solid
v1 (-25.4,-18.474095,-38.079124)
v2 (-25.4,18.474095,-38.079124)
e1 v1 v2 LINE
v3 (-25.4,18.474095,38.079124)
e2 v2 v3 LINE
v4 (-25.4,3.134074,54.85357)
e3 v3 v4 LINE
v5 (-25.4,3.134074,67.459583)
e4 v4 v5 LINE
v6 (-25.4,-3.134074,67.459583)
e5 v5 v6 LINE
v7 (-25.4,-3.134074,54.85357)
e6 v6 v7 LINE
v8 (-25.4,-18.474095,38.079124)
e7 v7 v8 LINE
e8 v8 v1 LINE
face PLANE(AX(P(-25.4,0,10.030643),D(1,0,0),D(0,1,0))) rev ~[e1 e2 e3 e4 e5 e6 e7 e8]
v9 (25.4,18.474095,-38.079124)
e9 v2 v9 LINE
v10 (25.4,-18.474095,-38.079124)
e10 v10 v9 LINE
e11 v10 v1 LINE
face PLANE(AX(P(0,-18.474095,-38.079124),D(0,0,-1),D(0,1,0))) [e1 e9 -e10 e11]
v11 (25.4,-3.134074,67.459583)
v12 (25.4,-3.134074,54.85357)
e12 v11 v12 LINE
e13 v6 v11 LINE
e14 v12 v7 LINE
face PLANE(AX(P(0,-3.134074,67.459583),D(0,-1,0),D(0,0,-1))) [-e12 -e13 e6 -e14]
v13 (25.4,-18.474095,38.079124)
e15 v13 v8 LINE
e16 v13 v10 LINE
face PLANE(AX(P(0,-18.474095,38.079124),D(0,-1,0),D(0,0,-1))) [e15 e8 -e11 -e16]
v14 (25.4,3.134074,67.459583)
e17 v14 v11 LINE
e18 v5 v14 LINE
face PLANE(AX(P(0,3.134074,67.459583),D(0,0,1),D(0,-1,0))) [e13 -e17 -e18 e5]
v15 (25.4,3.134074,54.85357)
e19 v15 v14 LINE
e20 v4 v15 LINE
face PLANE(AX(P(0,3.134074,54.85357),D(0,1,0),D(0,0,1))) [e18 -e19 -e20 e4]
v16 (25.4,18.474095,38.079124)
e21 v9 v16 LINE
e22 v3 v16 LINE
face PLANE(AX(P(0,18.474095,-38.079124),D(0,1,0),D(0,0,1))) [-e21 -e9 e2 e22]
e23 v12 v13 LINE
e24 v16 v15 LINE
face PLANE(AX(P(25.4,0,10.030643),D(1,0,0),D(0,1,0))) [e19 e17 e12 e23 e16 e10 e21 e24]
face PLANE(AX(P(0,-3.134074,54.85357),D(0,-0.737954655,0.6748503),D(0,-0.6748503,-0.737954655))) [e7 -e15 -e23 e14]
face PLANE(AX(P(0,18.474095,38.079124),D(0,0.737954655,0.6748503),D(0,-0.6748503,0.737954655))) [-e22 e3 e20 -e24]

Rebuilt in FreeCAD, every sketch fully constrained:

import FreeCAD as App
import Part
import Sketcher
from FreeCAD import Vector
Q = App.Units.Quantity

doc = App.newDocument("Part")
body = doc.addObject("PartDesign::Body", "Body")

# Sketch on YZ plane
sketch1 = body.newObject("Sketcher::SketchObject", "Sketch")
sketch1.AttachmentSupport = (doc.getObject("YZ_Plane"), [""])
sketch1.MapMode = "FlatFace"
sketch1.addGeometry([
    Part.LineSegment(Vector(-18, -38, 0), Vector(18, -38, 0)),  # 0
    Part.LineSegment(Vector(18, -38, 0), Vector(18, 38, 0)),  # 1
    Part.LineSegment(Vector(18, 38, 0), Vector(3, 55, 0)),  # 2
    Part.LineSegment(Vector(3, 55, 0), Vector(3, 67, 0)),  # 3
    Part.LineSegment(Vector(3, 67, 0), Vector(-3, 67, 0)),  # 4
    Part.LineSegment(Vector(-3, 67, 0), Vector(-3, 55, 0)),  # 5
    Part.LineSegment(Vector(-3, 55, 0), Vector(-18, 38, 0)),  # 6
    Part.LineSegment(Vector(-18, 38, 0), Vector(-18, -38, 0)),  # 7
], False)
sketch1.addConstraint([
    Sketcher.Constraint("Coincident", 0, 2, 1, 1),
    Sketcher.Constraint("Coincident", 1, 2, 2, 1),
    Sketcher.Constraint("Coincident", 2, 2, 3, 1),
    Sketcher.Constraint("Coincident", 3, 2, 4, 1),
    Sketcher.Constraint("Coincident", 4, 2, 5, 1),
    Sketcher.Constraint("Coincident", 5, 2, 6, 1),
    Sketcher.Constraint("Coincident", 6, 2, 7, 1),
    Sketcher.Constraint("Coincident", 7, 2, 0, 1),
    Sketcher.Constraint("Horizontal", 0),
    Sketcher.Constraint("Vertical", 1),
    Sketcher.Constraint("Vertical", 3),
    Sketcher.Constraint("Horizontal", 4),
    Sketcher.Constraint("Vertical", 5),
    Sketcher.Constraint("Vertical", 7),
    Sketcher.Constraint("Symmetric", 0, 2, 6, 2, -1, 1),
    Sketcher.Constraint("Symmetric", 2, 2, 5, 2, -2),
    Sketcher.Constraint("Horizontal", 1, 2, 6, 2),
    Sketcher.Constraint("Distance", 2, 22.730998),
    Sketcher.Constraint("DistanceX", 0, 1, 0, 2, 36.94819),
    Sketcher.Constraint("DistanceY", 1, 1, 1, 2, 76.158248),
    Sketcher.Constraint("DistanceX", 4, 2, 4, 1, 6.268148),
    Sketcher.Constraint("DistanceY", 3, 1, 3, 2, 12.606013),
])
pad1 = body.newObject("PartDesign::Pad", "Pad")
pad1.Profile = sketch1
pad1.Type = "TwoLengths"
pad1.Length = Q("1 in")
pad1.Length2 = Q("1 in")

doc.recompute()
